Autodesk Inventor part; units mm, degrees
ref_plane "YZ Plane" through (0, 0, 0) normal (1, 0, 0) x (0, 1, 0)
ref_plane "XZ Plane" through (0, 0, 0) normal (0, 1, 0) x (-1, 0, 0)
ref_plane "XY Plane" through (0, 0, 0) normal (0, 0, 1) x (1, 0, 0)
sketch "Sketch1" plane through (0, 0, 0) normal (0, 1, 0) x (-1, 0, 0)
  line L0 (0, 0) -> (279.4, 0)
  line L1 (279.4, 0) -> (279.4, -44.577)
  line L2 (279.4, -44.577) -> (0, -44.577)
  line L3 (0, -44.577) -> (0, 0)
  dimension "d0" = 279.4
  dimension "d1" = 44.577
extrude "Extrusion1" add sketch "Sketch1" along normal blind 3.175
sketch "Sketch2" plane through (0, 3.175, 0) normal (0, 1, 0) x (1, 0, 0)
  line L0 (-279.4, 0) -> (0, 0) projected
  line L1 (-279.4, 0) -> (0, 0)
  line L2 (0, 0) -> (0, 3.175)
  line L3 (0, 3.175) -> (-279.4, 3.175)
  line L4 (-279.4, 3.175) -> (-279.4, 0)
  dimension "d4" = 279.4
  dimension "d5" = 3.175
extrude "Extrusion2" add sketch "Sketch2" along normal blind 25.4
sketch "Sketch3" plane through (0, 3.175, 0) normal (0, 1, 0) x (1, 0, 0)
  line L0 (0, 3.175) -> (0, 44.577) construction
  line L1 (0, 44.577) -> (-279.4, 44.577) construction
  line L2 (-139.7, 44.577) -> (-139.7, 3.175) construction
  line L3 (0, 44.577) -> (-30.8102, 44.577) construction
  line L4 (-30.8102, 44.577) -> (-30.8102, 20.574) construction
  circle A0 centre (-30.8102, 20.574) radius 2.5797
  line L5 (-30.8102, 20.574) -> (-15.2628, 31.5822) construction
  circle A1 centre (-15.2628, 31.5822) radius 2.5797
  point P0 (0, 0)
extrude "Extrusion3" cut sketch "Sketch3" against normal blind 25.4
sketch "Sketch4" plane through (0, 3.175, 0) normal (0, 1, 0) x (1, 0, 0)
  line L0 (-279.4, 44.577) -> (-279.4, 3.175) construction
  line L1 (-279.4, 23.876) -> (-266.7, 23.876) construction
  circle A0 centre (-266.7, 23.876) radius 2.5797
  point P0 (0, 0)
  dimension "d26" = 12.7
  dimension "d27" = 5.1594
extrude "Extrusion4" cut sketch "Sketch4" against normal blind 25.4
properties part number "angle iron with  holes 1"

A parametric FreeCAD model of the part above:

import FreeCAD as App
import Part
import Sketcher
Q = App.Units.Quantity


def add_polygon(sketch, points):
    """Adds a closed chain of lines whose ends are joined by coincident constraints."""
    first, n = sketch.GeometryCount, len(points)
    for a, b in zip(points, points[1:] + points[:1]):
        sketch.addGeometry(Part.LineSegment(App.Vector(*a, 0), App.Vector(*b, 0)), False)
    for i in range(n):
        sketch.addConstraint(Sketcher.Constraint("Coincident", first + i, 2, first + (i + 1) % n, 1))

doc = App.newDocument("Part")
body = doc.addObject("PartDesign::Body", "Body")

sketch1 = doc.addObject("Sketcher::SketchObject", "Sketch")
body.addObject(sketch1)
sketch1.AttachmentSupport = (doc.XZ_Plane, [""])
sketch1.MapMode = "FlatFace"
add_polygon(sketch1, [(-279, 0), (0, 0), (0, -45), (-279, -45)])
sketch1.addConstraint([
    Sketcher.Constraint("Horizontal", 0),
    Sketcher.Constraint("Vertical", 1),
    Sketcher.Constraint("Horizontal", 2),
    Sketcher.Constraint("Vertical", 3),
    Sketcher.Constraint("Coincident", 0, 2, -1, 1),
    Sketcher.Constraint("DistanceX", 0, 1, 0, 2, Q("11 in")),
    Sketcher.Constraint("DistanceY", 1, 2, 1, 1, Q("1.755 in")),
])
pad1 = doc.addObject("PartDesign::Pad", "Pad")
body.addObject(pad1)
pad1.Profile = sketch1
pad1.Length = Q("0.125 in")
pad1.Reversed = True

sketch2 = doc.addObject("Sketcher::SketchObject", "Sketch001")
body.addObject(sketch2)
sketch2.AttachmentSupport = (doc.XZ_Plane, [""])
sketch2.MapMode = "FlatFace"
sketch2.AttachmentOffset = App.Placement(App.Vector(0, 0, -0.125 * 25.4), App.Rotation())
add_polygon(sketch2, [(-279.4, -3.2), (-279.4, 0), (0, 0), (0, -3.2)])
sketch2.addConstraint([
    Sketcher.Constraint("Vertical", 0),
    Sketcher.Constraint("Horizontal", 1),
    Sketcher.Constraint("Vertical", 2),
    Sketcher.Constraint("Horizontal", 3),
    Sketcher.Constraint("Coincident", 1, 2, -1, 1),
    Sketcher.Constraint("DistanceX", 1, 1, 1, 2, Q("11 in")),
    Sketcher.Constraint("DistanceY", 0, 1, 0, 2, Q("0.125 in")),
])
pad2 = doc.addObject("PartDesign::Pad", "Pad001")
body.addObject(pad2)
pad2.Profile = sketch2
pad2.Length = Q("1 in")
pad2.Reversed = True

sketch3 = doc.addObject("Sketcher::SketchObject", "Sketch002")
body.addObject(sketch3)
sketch3.AttachmentSupport = (doc.XZ_Plane, [""])
sketch3.MapMode = "FlatFace"
sketch3.AttachmentOffset = App.Placement(App.Vector(0, 0, -0.125 * 25.4), App.Rotation())
sketch3.addGeometry([
    Part.Circle(App.Vector(-30.8, -20.6, 0), App.Vector(0, 0, 1), 2.6),
    Part.Circle(App.Vector(-15.3, -31.6, 0), App.Vector(0, 0, 1), 2.6),
], False)
sketch3.addConstraint([
    Sketcher.Constraint("Equal", 0, 1),
    Sketcher.Constraint("Diameter", 0, Q("0.203126 in")),
    Sketcher.Constraint("DistanceY", 0, 3, -1, 1, Q("0.81 in")),
    Sketcher.Constraint("DistanceX", 0, 3, -1, 1, Q("1.213 in")),
    Sketcher.Constraint("DistanceX", 1, 3, -1, 1, Q("0.6009 in")),
    Sketcher.Constraint("DistanceY", 1, 3, -1, 1, Q("1.2434 in")),
])
pocket1 = doc.addObject("PartDesign::Pocket", "Pocket")
body.addObject(pocket1)
pocket1.Profile = sketch3
pocket1.Length = Q("1 in")
pocket1.Reversed = True

sketch4 = doc.addObject("Sketcher::SketchObject", "Sketch003")
body.addObject(sketch4)
sketch4.AttachmentSupport = (doc.XZ_Plane, [""])
sketch4.MapMode = "FlatFace"
sketch4.AttachmentOffset = App.Placement(App.Vector(0, 0, -0.125 * 25.4), App.Rotation())
sketch4.addGeometry(Part.Circle(App.Vector(-266.7, -23.9, 0), App.Vector(0, 0, 1), 2.6), False)
sketch4.addConstraint([
    Sketcher.Constraint("Diameter", 0, Q("0.203126 in")),
    Sketcher.Constraint("DistanceX", 0, 3, -1, 1, Q("10.5 in")),
    Sketcher.Constraint("DistanceY", 0, 3, -1, 1, Q("0.94 in")),
])
pocket2 = doc.addObject("PartDesign::Pocket", "Pocket001")
body.addObject(pocket2)
pocket2.Profile = sketch4
pocket2.Length = Q("1 in")
pocket2.Reversed = True

doc.recompute()
